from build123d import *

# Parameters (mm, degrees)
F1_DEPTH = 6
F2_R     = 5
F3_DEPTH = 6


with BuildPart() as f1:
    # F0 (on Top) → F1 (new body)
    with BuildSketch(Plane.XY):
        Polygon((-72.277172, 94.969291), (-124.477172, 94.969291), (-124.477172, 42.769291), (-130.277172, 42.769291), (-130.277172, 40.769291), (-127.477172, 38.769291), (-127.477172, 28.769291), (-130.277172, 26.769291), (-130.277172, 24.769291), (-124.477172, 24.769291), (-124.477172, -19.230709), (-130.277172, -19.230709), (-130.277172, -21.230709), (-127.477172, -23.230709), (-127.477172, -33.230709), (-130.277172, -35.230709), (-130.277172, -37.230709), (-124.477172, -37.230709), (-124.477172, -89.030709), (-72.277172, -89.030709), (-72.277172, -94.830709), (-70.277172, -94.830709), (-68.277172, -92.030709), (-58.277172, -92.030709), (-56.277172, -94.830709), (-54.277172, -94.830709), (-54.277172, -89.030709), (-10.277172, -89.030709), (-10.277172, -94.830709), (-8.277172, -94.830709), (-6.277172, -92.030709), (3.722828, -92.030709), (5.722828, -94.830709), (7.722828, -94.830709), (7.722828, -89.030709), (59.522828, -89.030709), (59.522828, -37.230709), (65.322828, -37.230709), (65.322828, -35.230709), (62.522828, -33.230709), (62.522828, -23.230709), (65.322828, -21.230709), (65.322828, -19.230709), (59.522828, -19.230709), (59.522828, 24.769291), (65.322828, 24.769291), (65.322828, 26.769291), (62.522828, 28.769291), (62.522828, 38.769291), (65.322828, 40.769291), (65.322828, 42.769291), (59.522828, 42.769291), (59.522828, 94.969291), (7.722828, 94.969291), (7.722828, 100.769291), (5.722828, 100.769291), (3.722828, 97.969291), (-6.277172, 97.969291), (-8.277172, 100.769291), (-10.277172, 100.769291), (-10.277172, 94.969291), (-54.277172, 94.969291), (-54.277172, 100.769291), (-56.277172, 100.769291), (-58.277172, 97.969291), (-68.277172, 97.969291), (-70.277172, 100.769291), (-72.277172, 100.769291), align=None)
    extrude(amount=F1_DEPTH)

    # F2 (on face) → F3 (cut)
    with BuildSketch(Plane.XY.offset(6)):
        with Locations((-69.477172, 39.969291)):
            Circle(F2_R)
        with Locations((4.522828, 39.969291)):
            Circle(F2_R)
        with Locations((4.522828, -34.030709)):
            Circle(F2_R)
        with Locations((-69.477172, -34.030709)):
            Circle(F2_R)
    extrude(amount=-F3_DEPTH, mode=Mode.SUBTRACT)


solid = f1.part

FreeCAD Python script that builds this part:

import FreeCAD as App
import Part
import Sketcher
from FreeCAD import Vector


def add_polygon(sketch, points):
    """Adds a closed chain of lines whose ends are joined by coincident constraints."""
    first, n = sketch.GeometryCount, len(points)
    for a, b in zip(points, points[1:] + points[:1]):
        sketch.addGeometry(Part.LineSegment(App.Vector(*a, 0), App.Vector(*b, 0)), False)
    for i in range(n):
        sketch.addConstraint(Sketcher.Constraint("Coincident", first + i, 2, first + (i + 1) % n, 1))

doc = App.newDocument("Part")
body = doc.addObject("PartDesign::Body", "Body")

sketch1 = body.newObject("Sketcher::SketchObject", "Sketch")
sketch1.AttachmentSupport = (doc.getObject("XY_Plane"), [""])
sketch1.MapMode = "FlatFace"
add_polygon(sketch1, [(-72.3, 95), (-124.5, 95), (-124.5, 42.8), (-130.3, 42.8), (-130.3, 40.8), (-127.5, 38.8), (-127.5, 28.8), (-130.3, 26.8), (-130.3, 24.8), (-124.5, 24.8), (-124.5, -19.2), (-130.3, -19.2), (-130.3, -21.2), (-127.5, -23.2), (-127.5, -33.2), (-130.3, -35.2), (-130.3, -37.2), (-124.5, -37.2), (-124.5, -89), (-72.3, -89), (-72.3, -94.8), (-70.3, -94.8), (-68.3, -92), (-58.3, -92), (-56.3, -94.8), (-54.3, -94.8), (-54.3, -89), (-10.3, -89), (-10.3, -94.8), (-8.3, -94.8), (-6.3, -92), (3.7, -92), (5.7, -94.8), (7.7, -94.8), (7.7, -89), (59.5, -89), (59.5, -37.2), (65.3, -37.2), (65.3, -35.2), (62.5, -33.2), (62.5, -23.2), (65.3, -21.2), (65.3, -19.2), (59.5, -19.2), (59.5, 24.8), (65.3, 24.8), (65.3, 26.8), (62.5, 28.8), (62.5, 38.8), (65.3, 40.8), (65.3, 42.8), (59.5, 42.8), (59.5, 95), (7.7, 95), (7.7, 100.8), (5.7, 100.8), (3.7, 98), (-6.3, 98), (-8.3, 100.8), (-10.3, 100.8), (-10.3, 95), (-54.3, 95), (-54.3, 100.8), (-56.3, 100.8), (-58.3, 98), (-68.3, 98), (-70.3, 100.8), (-72.3, 100.8)])
sketch1.addConstraint(Sketcher.Constraint("Horizontal", 0))
sketch1.addConstraint(Sketcher.Constraint("Vertical", 1))
sketch1.addConstraint(Sketcher.Constraint("Horizontal", 2))
sketch1.addConstraint(Sketcher.Constraint("Vertical", 3))
sketch1.addConstraint(Sketcher.Constraint("Vertical", 5))
sketch1.addConstraint(Sketcher.Constraint("Vertical", 7))
sketch1.addConstraint(Sketcher.Constraint("Horizontal", 8))
sketch1.addConstraint(Sketcher.Constraint("Vertical", 9))
sketch1.addConstraint(Sketcher.Constraint("Horizontal", 10))
sketch1.addConstraint(Sketcher.Constraint("Vertical", 11))
sketch1.addConstraint(Sketcher.Constraint("Vertical", 13))
sketch1.addConstraint(Sketcher.Constraint("Vertical", 15))
sketch1.addConstraint(Sketcher.Constraint("Horizontal", 16))
sketch1.addConstraint(Sketcher.Constraint("Vertical", 17))
sketch1.addConstraint(Sketcher.Constraint("Horizontal", 18))
sketch1.addConstraint(Sketcher.Constraint("Vertical", 19))
sketch1.addConstraint(Sketcher.Constraint("Horizontal", 20))
sketch1.addConstraint(Sketcher.Constraint("Horizontal", 22))
sketch1.addConstraint(Sketcher.Constraint("Horizontal", 24))
sketch1.addConstraint(Sketcher.Constraint("Vertical", 25))
sketch1.addConstraint(Sketcher.Constraint("Horizontal", 26))
sketch1.addConstraint(Sketcher.Constraint("Vertical", 27))
sketch1.addConstraint(Sketcher.Constraint("Horizontal", 28))
sketch1.addConstraint(Sketcher.Constraint("Horizontal", 30))
sketch1.addConstraint(Sketcher.Constraint("Horizontal", 32))
sketch1.addConstraint(Sketcher.Constraint("Vertical", 33))
sketch1.addConstraint(Sketcher.Constraint("Horizontal", 34))
sketch1.addConstraint(Sketcher.Constraint("Vertical", 35))
sketch1.addConstraint(Sketcher.Constraint("Horizontal", 36))
sketch1.addConstraint(Sketcher.Constraint("Vertical", 37))
sketch1.addConstraint(Sketcher.Constraint("Vertical", 39))
sketch1.addConstraint(Sketcher.Constraint("Vertical", 41))
sketch1.addConstraint(Sketcher.Constraint("Horizontal", 42))
sketch1.addConstraint(Sketcher.Constraint("Vertical", 43))
sketch1.addConstraint(Sketcher.Constraint("Horizontal", 44))
sketch1.addConstraint(Sketcher.Constraint("Vertical", 45))
sketch1.addConstraint(Sketcher.Constraint("Vertical", 47))
sketch1.addConstraint(Sketcher.Constraint("Vertical", 49))
sketch1.addConstraint(Sketcher.Constraint("Horizontal", 50))
sketch1.addConstraint(Sketcher.Constraint("Vertical", 51))
sketch1.addConstraint(Sketcher.Constraint("Horizontal", 52))
sketch1.addConstraint(Sketcher.Constraint("Vertical", 53))
sketch1.addConstraint(Sketcher.Constraint("Horizontal", 54))
sketch1.addConstraint(Sketcher.Constraint("Horizontal", 56))
sketch1.addConstraint(Sketcher.Constraint("Horizontal", 58))
sketch1.addConstraint(Sketcher.Constraint("Vertical", 59))
sketch1.addConstraint(Sketcher.Constraint("Horizontal", 60))
sketch1.addConstraint(Sketcher.Constraint("Vertical", 61))
sketch1.addConstraint(Sketcher.Constraint("Horizontal", 62))
sketch1.addConstraint(Sketcher.Constraint("Horizontal", 64))
sketch1.addConstraint(Sketcher.Constraint("Horizontal", 66))
sketch1.addConstraint(Sketcher.Constraint("Vertical", 67))
sketch1.addConstraint(Sketcher.Constraint("Parallel", 4, 12))
sketch1.addConstraint(Sketcher.Constraint("Parallel", 6, 14))
sketch1.addConstraint(Sketcher.Constraint("Perpendicular", 12, 21))
sketch1.addConstraint(Sketcher.Constraint("Perpendicular", 14, 23))
sketch1.addConstraint(Sketcher.Constraint("Parallel", 21, 29))
sketch1.addConstraint(Sketcher.Constraint("Parallel", 23, 31))
sketch1.addConstraint(Sketcher.Constraint("Perpendicular", 29, 38))
sketch1.addConstraint(Sketcher.Constraint("Perpendicular", 31, 40))
sketch1.addConstraint(Sketcher.Constraint("Parallel", 38, 46))
sketch1.addConstraint(Sketcher.Constraint("Parallel", 40, 48))
sketch1.addConstraint(Sketcher.Constraint("Perpendicular", 46, 55))
sketch1.addConstraint(Sketcher.Constraint("Perpendicular", 48, 57))
sketch1.addConstraint(Sketcher.Constraint("Parallel", 55, 63))
sketch1.addConstraint(Sketcher.Constraint("Parallel", 57, 65))
sketch1.addConstraint(Sketcher.Constraint("Horizontal", 20, 2, 23, 2))
sketch1.addConstraint(Sketcher.Constraint("Horizontal", 18, 2, 25, 2))
sketch1.addConstraint(Sketcher.Constraint("Horizontal", 24, 2, 27, 2))
sketch1.addConstraint(Sketcher.Constraint("Horizontal", 22, 2, 29, 2))
sketch1.addConstraint(Sketcher.Constraint("Horizontal", 28, 2, 31, 2))
sketch1.addConstraint(Sketcher.Constraint("Horizontal", 26, 2, 33, 2))
sketch1.addConstraint(Sketcher.Constraint("Horizontal", 16, 2, 35, 2))
sketch1.addConstraint(Sketcher.Constraint("Horizontal", 14, 2, 37, 2))
sketch1.addConstraint(Sketcher.Constraint("Horizontal", 13, 2, 38, 2))
sketch1.addConstraint(Sketcher.Constraint("Horizontal", 12, 2, 39, 2))
sketch1.addConstraint(Sketcher.Constraint("Horizontal", 11, 2, 40, 2))
sketch1.addConstraint(Sketcher.Constraint("Horizontal", 10, 2, 41, 2))
sketch1.addConstraint(Sketcher.Constraint("Horizontal", 8, 2, 43, 2))
sketch1.addConstraint(Sketcher.Constraint("Horizontal", 6, 2, 45, 2))
sketch1.addConstraint(Sketcher.Constraint("Horizontal", 5, 2, 46, 2))
sketch1.addConstraint(Sketcher.Constraint("Horizontal", 4, 2, 47, 2))
sketch1.addConstraint(Sketcher.Constraint("Horizontal", 3, 2, 48, 2))
sketch1.addConstraint(Sketcher.Constraint("Horizontal", 2, 2, 49, 2))
sketch1.addConstraint(Sketcher.Constraint("Horizontal", 0, 2, 51, 2))
sketch1.addConstraint(Sketcher.Constraint("Horizontal", 54, 2, 57, 2))
sketch1.addConstraint(Sketcher.Constraint("Horizontal", 52, 2, 59, 2))
sketch1.addConstraint(Sketcher.Constraint("Horizontal", 58, 2, 61, 2))
sketch1.addConstraint(Sketcher.Constraint("Horizontal", 56, 2, 63, 2))
sketch1.addConstraint(Sketcher.Constraint("Horizontal", 62, 2, 65, 2))
sketch1.addConstraint(Sketcher.Constraint("Vertical", 3, 2, 6, 2))
sketch1.addConstraint(Sketcher.Constraint("Vertical", 1, 2, 8, 2))
sketch1.addConstraint(Sketcher.Constraint("Vertical", 7, 2, 10, 2))
sketch1.addConstraint(Sketcher.Constraint("Vertical", 5, 2, 12, 2))
sketch1.addConstraint(Sketcher.Constraint("Vertical", 11, 2, 14, 2))
sketch1.addConstraint(Sketcher.Constraint("Vertical", 9, 2, 16, 2))
sketch1.addConstraint(Sketcher.Constraint("Vertical", 37, 2, 40, 2))
sketch1.addConstraint(Sketcher.Constraint("Vertical", 35, 2, 42, 2))
sketch1.addConstraint(Sketcher.Constraint("Vertical", 41, 2, 44, 2))
sketch1.addConstraint(Sketcher.Constraint("Vertical", 43, 2, 50, 2))
sketch1.addConstraint(Sketcher.Constraint("Vertical", 33, 2, 52, 2))
sketch1.addConstraint(Sketcher.Constraint("Vertical", 31, 2, 54, 2))
sketch1.addConstraint(Sketcher.Constraint("Vertical", 30, 2, 55, 2))
sketch1.addConstraint(Sketcher.Constraint("Vertical", 29, 2, 56, 2))
sketch1.addConstraint(Sketcher.Constraint("Vertical", 27, 2, 58, 2))
sketch1.addConstraint(Sketcher.Constraint("Vertical", 25, 2, 60, 2))
sketch1.addConstraint(Sketcher.Constraint("Vertical", 23, 2, 62, 2))
sketch1.addConstraint(Sketcher.Constraint("Vertical", 21, 2, 64, 2))
sketch1.addConstraint(Sketcher.Constraint("Vertical", 19, 2, 66, 2))
sketch1.addConstraint(Sketcher.Constraint("Equal", 20, 24))
sketch1.addConstraint(Sketcher.Constraint("Equal", 24, 28))
sketch1.addConstraint(Sketcher.Constraint("Equal", 22, 30))
sketch1.addConstraint(Sketcher.Constraint("Equal", 28, 32))
sketch1.addConstraint(Sketcher.Constraint("Equal", 16, 36))
sketch1.addConstraint(Sketcher.Constraint("Equal", 18, 1))
sketch1.addConstraint(Sketcher.Constraint("Equal", 66, 3))
sketch1.addConstraint(Sketcher.Constraint("Equal", 64, 5))
sketch1.addConstraint(Sketcher.Constraint("Equal", 3, 7))
sketch1.addConstraint(Sketcher.Constraint("Equal", 60, 9))
sketch1.addConstraint(Sketcher.Constraint("Equal", 7, 11))
sketch1.addConstraint(Sketcher.Constraint("Equal", 5, 13))
sketch1.addConstraint(Sketcher.Constraint("Equal", 11, 15))
sketch1.addConstraint(Sketcher.Constraint("Equal", 52, 17))
sketch1.addConstraint(Sketcher.Constraint("Equal", 50, 19))
sketch1.addConstraint(Sketcher.Constraint("Equal", 33, 53))
sketch1.addConstraint(Sketcher.Constraint("Equal", 14, 21))
sketch1.addConstraint(Sketcher.Constraint("DistanceX", 20, 1, 20, 2, 2.0))
sketch1.addConstraint(Sketcher.Constraint("DistanceX", 22, 1, 22, 2, 10.0))
sketch1.addConstraint(Sketcher.Constraint("DistanceX", 26, 1, 26, 2, 44.0))
sketch1.addConstraint(Sketcher.Constraint("DistanceX", 0, 2, 0, 1, 52.2))
sketch1.addConstraint(Sketcher.Constraint("DistanceX", 2, 2, 2, 1, 5.8))
sketch1.addConstraint(Sketcher.Constraint("DistanceX", 34, 1, 34, 2, 51.8))
sketch1.addConstraint(Sketcher.Constraint("Distance", 4, 3.44093))
sketch1.addConstraint(Sketcher.Constraint("DistanceX", 0, 2, -1, 1, 124.477172))
sketch1.addConstraint(Sketcher.Constraint("DistanceY", -1, 1, 0, 2, 94.969291))
sketch1.addConstraint(Sketcher.Constraint("DistanceX", 4, 2, -1, 1, 127.477172))
pad1 = body.newObject("PartDesign::Pad", "Pad")
pad1.Profile = sketch1
pad1.Length = 6

sketch2 = body.newObject("Sketcher::SketchObject", "Sketch001")
sketch2.AttachmentSupport = (doc.getObject("XY_Plane"), [""])
sketch2.MapMode = "FlatFace"
sketch2.AttachmentOffset = App.Placement(Vector(0, 0, 6), App.Rotation())
sketch2.addGeometry(Part.Circle(Vector(-69, 40, 0), Vector(0, 0, 1), 5), False)
sketch2.addGeometry(Part.Circle(Vector(5, 40, 0), Vector(0, 0, 1), 5), False)
sketch2.addGeometry(Part.Circle(Vector(5, -34, 0), Vector(0, 0, 1), 5), False)
sketch2.addGeometry(Part.Circle(Vector(-69, -34, 0), Vector(0, 0, 1), 5), False)
sketch2.addConstraint(Sketcher.Constraint("Equal", 0, 1))
sketch2.addConstraint(Sketcher.Constraint("Equal", 1, 2))
sketch2.addConstraint(Sketcher.Constraint("Equal", 2, 3))
sketch2.addConstraint(Sketcher.Constraint("Horizontal", 0, 3, 1, 3))
sketch2.addConstraint(Sketcher.Constraint("Horizontal", 2, 3, 3, 3))
sketch2.addConstraint(Sketcher.Constraint("Vertical", 1, 3, 2, 3))
sketch2.addConstraint(Sketcher.Constraint("Vertical", 0, 3, 3, 3))
sketch2.addConstraint(Sketcher.Constraint("Diameter", 0, 10.0))
sketch2.addConstraint(Sketcher.Constraint("DistanceX", 0, 3, 1, 3, 74.0))
sketch2.addConstraint(Sketcher.Constraint("DistanceY", 2, 3, 1, 3, 74.0))
sketch2.addConstraint(Sketcher.Constraint("DistanceX", 0, 3, -1, 1, 69.477172))
sketch2.addConstraint(Sketcher.Constraint("DistanceY", -1, 1, 0, 3, 39.969291))
pocket1 = body.newObject("PartDesign::Pocket", "Pocket")
pocket1.Profile = sketch2
pocket1.Length = 6

doc.recompute()
